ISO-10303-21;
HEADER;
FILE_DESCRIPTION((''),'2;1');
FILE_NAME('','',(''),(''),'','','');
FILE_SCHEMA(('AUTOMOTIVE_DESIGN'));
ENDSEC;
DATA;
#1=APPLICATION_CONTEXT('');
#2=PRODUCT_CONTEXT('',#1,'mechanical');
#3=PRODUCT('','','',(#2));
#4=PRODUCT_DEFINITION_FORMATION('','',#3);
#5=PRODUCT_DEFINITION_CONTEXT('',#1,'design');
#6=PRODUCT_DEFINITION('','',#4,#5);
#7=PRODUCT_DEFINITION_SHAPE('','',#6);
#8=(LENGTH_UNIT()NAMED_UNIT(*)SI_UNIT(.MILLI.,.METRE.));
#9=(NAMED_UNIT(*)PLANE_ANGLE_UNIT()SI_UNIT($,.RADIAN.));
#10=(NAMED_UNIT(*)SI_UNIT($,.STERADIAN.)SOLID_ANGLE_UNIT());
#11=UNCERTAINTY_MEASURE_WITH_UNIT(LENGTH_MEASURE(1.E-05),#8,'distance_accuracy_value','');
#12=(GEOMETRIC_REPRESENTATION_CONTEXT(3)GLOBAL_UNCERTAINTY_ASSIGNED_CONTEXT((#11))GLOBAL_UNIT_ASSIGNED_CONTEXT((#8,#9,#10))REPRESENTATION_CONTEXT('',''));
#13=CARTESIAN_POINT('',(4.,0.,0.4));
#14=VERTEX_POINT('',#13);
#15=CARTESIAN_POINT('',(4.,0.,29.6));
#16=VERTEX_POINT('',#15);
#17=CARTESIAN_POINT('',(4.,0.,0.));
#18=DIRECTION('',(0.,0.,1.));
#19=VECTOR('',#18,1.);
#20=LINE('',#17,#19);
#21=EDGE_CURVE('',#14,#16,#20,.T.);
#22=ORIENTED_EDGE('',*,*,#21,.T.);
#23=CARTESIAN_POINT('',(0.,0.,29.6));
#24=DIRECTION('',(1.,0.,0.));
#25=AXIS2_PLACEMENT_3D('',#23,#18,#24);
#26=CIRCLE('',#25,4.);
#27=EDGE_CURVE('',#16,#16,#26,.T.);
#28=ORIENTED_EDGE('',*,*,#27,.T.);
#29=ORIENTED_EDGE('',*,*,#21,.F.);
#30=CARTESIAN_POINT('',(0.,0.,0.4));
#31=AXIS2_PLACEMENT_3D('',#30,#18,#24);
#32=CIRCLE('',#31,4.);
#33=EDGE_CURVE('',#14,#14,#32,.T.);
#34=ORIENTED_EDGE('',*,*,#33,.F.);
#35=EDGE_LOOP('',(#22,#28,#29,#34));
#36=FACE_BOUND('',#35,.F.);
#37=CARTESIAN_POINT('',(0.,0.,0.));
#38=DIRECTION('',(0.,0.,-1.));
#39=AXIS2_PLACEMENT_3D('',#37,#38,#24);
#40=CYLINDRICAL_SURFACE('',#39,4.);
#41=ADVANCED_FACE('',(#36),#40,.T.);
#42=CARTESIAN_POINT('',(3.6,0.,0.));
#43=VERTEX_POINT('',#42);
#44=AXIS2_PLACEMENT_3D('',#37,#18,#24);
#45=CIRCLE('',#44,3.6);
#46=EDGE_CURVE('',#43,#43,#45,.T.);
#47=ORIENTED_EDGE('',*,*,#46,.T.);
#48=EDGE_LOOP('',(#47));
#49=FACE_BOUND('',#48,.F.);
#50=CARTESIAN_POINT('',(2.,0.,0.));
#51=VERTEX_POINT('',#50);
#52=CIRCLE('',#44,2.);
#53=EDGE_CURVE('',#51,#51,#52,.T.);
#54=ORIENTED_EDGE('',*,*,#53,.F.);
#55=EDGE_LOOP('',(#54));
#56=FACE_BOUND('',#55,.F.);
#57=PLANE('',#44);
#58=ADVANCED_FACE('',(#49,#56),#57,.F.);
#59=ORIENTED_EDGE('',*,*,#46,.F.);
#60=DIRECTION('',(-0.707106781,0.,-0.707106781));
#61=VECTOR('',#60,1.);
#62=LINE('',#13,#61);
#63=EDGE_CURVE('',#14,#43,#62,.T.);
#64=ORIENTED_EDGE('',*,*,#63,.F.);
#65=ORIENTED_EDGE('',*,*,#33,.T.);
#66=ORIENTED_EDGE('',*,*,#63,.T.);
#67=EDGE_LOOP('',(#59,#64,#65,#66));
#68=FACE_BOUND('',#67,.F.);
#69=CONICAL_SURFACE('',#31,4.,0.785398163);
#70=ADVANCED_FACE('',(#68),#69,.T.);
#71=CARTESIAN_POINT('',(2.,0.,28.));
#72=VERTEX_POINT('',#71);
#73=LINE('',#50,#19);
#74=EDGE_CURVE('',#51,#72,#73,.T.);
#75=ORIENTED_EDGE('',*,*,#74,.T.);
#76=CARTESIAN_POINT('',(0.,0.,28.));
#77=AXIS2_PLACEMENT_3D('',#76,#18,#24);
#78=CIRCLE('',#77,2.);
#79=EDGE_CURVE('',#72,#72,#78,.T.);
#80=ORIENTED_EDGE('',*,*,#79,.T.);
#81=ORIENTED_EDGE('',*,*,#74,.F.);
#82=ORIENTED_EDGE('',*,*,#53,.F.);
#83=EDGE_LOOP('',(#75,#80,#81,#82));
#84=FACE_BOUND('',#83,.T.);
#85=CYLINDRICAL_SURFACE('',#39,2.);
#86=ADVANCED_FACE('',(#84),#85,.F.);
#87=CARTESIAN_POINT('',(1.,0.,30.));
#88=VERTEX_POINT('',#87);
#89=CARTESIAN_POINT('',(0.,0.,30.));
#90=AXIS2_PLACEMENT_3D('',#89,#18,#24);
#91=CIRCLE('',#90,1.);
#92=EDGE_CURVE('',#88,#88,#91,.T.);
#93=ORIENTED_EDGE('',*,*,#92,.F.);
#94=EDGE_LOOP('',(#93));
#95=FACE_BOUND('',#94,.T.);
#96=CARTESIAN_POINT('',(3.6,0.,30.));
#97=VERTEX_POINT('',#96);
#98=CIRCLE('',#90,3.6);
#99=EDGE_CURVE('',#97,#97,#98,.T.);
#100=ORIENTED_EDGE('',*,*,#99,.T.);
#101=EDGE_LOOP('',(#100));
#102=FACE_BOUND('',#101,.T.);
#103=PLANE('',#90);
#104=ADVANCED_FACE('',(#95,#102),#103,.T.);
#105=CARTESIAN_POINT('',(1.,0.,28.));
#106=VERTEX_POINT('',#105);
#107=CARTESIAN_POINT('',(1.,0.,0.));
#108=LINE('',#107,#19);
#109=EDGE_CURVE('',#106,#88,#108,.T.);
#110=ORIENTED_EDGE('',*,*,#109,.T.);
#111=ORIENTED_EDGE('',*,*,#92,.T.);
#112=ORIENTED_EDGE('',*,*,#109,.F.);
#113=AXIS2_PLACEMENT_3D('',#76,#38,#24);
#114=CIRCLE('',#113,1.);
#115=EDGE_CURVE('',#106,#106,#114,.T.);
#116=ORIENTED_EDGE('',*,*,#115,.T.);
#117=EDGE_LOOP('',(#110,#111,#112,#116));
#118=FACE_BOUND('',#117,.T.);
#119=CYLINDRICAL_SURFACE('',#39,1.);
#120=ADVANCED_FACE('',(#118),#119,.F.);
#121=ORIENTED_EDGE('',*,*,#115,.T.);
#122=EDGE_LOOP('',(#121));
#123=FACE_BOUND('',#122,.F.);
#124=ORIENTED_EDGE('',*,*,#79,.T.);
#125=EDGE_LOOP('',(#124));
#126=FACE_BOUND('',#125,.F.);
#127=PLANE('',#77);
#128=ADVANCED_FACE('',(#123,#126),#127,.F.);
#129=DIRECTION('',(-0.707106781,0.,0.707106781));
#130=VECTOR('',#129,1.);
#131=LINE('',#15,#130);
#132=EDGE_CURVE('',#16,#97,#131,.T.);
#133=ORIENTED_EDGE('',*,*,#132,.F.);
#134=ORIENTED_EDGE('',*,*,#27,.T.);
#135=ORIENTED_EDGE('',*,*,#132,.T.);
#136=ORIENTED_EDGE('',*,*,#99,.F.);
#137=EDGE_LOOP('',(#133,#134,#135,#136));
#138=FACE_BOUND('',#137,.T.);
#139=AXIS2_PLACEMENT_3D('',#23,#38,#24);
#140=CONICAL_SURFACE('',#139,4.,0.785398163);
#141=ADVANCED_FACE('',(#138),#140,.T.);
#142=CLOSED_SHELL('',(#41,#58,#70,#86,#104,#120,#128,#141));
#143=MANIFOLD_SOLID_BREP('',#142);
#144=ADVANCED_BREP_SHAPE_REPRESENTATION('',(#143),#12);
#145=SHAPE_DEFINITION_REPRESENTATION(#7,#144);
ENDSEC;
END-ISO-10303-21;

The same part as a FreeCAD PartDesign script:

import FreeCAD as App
import Part
import Sketcher


def edges_at(feature, points):
    """Names of the edges that pass closest to the given points."""
    edges = feature.Shape.Edges
    near = lambda p: min(range(len(edges)), key=lambda i: edges[i].distToShape(Part.Vertex(*p))[0])
    return sorted({f"Edge{near(p) + 1}" for p in points})

doc = App.newDocument("Part")
body = doc.addObject("PartDesign::Body", "Body")

# Sketch on XY plane
sketch1 = doc.addObject("Sketcher::SketchObject", "Sketch")
body.addObject(sketch1)
sketch1.AttachmentSupport = (doc.XY_Plane, [""])
sketch1.MapMode = "FlatFace"
sketch1.addGeometry(Part.Circle(App.Vector(0, 0, 0), App.Vector(0, 0, 1), 1), False)
sketch1.addConstraint([
    Sketcher.Constraint("Coincident", 0, 3, -1, 1),
    Sketcher.Constraint("Diameter", 0, 2.0),
])
pad1 = doc.addObject("PartDesign::Pad", "Pad")
body.addObject(pad1)
pad1.Profile = sketch1
pad1.Length = 30
body2 = doc.addObject("PartDesign::Body", "Body001")

# Sketch on XY plane
sketch2 = doc.addObject("Sketcher::SketchObject", "Sketch001")
body2.addObject(sketch2)
sketch2.AttachmentSupport = (doc.getObject("XY_Plane001"), [""])
sketch2.MapMode = "FlatFace"
sketch2.addGeometry(Part.Circle(App.Vector(0, 0, 0), App.Vector(0, 0, 1), 2), False)
sketch2.addConstraint([
    Sketcher.Constraint("Coincident", 0, 3, -1, 1),
    Sketcher.Constraint("Diameter", 0, 4.0),
])
pad2 = doc.addObject("PartDesign::Pad", "Pad001")
body2.addObject(pad2)
pad2.Profile = sketch2
pad2.Length = 28
doc.recompute()

boolean = doc.addObject("PartDesign::Boolean", "Boolean")
body2.addObject(boolean)
boolean.Type = "Fuse"
boolean.addObjects([body])
body3 = doc.addObject("PartDesign::Body", "Body002")

# Sketch on XY plane
sketch3 = doc.addObject("Sketcher::SketchObject", "Sketch002")
body3.addObject(sketch3)
sketch3.AttachmentSupport = (doc.getObject("XY_Plane002"), [""])
sketch3.MapMode = "FlatFace"
sketch3.addGeometry(Part.Circle(App.Vector(0, 0, 0), App.Vector(0, 0, 1), 4), False)
sketch3.addConstraint([
    Sketcher.Constraint("Coincident", 0, 3, -1, 1),
    Sketcher.Constraint("Diameter", 0, 8.0),
])
pad3 = doc.addObject("PartDesign::Pad", "Pad002")
body3.addObject(pad3)
pad3.Profile = sketch3
pad3.Length = 30
doc.recompute()

boolean2 = doc.addObject("PartDesign::Boolean", "Boolean001")
body3.addObject(boolean2)
boolean2.Type = "Cut"
boolean2.addObjects([body2])
doc.recompute()

chamfer = doc.addObject("PartDesign::Chamfer", "Chamfer")
body3.addObject(chamfer)
chamfer.Base = (boolean2, edges_at(boolean2, [(-4, 0, 30), (-4, 0, 0)]))
chamfer.Size = 0.4

doc.recompute()
